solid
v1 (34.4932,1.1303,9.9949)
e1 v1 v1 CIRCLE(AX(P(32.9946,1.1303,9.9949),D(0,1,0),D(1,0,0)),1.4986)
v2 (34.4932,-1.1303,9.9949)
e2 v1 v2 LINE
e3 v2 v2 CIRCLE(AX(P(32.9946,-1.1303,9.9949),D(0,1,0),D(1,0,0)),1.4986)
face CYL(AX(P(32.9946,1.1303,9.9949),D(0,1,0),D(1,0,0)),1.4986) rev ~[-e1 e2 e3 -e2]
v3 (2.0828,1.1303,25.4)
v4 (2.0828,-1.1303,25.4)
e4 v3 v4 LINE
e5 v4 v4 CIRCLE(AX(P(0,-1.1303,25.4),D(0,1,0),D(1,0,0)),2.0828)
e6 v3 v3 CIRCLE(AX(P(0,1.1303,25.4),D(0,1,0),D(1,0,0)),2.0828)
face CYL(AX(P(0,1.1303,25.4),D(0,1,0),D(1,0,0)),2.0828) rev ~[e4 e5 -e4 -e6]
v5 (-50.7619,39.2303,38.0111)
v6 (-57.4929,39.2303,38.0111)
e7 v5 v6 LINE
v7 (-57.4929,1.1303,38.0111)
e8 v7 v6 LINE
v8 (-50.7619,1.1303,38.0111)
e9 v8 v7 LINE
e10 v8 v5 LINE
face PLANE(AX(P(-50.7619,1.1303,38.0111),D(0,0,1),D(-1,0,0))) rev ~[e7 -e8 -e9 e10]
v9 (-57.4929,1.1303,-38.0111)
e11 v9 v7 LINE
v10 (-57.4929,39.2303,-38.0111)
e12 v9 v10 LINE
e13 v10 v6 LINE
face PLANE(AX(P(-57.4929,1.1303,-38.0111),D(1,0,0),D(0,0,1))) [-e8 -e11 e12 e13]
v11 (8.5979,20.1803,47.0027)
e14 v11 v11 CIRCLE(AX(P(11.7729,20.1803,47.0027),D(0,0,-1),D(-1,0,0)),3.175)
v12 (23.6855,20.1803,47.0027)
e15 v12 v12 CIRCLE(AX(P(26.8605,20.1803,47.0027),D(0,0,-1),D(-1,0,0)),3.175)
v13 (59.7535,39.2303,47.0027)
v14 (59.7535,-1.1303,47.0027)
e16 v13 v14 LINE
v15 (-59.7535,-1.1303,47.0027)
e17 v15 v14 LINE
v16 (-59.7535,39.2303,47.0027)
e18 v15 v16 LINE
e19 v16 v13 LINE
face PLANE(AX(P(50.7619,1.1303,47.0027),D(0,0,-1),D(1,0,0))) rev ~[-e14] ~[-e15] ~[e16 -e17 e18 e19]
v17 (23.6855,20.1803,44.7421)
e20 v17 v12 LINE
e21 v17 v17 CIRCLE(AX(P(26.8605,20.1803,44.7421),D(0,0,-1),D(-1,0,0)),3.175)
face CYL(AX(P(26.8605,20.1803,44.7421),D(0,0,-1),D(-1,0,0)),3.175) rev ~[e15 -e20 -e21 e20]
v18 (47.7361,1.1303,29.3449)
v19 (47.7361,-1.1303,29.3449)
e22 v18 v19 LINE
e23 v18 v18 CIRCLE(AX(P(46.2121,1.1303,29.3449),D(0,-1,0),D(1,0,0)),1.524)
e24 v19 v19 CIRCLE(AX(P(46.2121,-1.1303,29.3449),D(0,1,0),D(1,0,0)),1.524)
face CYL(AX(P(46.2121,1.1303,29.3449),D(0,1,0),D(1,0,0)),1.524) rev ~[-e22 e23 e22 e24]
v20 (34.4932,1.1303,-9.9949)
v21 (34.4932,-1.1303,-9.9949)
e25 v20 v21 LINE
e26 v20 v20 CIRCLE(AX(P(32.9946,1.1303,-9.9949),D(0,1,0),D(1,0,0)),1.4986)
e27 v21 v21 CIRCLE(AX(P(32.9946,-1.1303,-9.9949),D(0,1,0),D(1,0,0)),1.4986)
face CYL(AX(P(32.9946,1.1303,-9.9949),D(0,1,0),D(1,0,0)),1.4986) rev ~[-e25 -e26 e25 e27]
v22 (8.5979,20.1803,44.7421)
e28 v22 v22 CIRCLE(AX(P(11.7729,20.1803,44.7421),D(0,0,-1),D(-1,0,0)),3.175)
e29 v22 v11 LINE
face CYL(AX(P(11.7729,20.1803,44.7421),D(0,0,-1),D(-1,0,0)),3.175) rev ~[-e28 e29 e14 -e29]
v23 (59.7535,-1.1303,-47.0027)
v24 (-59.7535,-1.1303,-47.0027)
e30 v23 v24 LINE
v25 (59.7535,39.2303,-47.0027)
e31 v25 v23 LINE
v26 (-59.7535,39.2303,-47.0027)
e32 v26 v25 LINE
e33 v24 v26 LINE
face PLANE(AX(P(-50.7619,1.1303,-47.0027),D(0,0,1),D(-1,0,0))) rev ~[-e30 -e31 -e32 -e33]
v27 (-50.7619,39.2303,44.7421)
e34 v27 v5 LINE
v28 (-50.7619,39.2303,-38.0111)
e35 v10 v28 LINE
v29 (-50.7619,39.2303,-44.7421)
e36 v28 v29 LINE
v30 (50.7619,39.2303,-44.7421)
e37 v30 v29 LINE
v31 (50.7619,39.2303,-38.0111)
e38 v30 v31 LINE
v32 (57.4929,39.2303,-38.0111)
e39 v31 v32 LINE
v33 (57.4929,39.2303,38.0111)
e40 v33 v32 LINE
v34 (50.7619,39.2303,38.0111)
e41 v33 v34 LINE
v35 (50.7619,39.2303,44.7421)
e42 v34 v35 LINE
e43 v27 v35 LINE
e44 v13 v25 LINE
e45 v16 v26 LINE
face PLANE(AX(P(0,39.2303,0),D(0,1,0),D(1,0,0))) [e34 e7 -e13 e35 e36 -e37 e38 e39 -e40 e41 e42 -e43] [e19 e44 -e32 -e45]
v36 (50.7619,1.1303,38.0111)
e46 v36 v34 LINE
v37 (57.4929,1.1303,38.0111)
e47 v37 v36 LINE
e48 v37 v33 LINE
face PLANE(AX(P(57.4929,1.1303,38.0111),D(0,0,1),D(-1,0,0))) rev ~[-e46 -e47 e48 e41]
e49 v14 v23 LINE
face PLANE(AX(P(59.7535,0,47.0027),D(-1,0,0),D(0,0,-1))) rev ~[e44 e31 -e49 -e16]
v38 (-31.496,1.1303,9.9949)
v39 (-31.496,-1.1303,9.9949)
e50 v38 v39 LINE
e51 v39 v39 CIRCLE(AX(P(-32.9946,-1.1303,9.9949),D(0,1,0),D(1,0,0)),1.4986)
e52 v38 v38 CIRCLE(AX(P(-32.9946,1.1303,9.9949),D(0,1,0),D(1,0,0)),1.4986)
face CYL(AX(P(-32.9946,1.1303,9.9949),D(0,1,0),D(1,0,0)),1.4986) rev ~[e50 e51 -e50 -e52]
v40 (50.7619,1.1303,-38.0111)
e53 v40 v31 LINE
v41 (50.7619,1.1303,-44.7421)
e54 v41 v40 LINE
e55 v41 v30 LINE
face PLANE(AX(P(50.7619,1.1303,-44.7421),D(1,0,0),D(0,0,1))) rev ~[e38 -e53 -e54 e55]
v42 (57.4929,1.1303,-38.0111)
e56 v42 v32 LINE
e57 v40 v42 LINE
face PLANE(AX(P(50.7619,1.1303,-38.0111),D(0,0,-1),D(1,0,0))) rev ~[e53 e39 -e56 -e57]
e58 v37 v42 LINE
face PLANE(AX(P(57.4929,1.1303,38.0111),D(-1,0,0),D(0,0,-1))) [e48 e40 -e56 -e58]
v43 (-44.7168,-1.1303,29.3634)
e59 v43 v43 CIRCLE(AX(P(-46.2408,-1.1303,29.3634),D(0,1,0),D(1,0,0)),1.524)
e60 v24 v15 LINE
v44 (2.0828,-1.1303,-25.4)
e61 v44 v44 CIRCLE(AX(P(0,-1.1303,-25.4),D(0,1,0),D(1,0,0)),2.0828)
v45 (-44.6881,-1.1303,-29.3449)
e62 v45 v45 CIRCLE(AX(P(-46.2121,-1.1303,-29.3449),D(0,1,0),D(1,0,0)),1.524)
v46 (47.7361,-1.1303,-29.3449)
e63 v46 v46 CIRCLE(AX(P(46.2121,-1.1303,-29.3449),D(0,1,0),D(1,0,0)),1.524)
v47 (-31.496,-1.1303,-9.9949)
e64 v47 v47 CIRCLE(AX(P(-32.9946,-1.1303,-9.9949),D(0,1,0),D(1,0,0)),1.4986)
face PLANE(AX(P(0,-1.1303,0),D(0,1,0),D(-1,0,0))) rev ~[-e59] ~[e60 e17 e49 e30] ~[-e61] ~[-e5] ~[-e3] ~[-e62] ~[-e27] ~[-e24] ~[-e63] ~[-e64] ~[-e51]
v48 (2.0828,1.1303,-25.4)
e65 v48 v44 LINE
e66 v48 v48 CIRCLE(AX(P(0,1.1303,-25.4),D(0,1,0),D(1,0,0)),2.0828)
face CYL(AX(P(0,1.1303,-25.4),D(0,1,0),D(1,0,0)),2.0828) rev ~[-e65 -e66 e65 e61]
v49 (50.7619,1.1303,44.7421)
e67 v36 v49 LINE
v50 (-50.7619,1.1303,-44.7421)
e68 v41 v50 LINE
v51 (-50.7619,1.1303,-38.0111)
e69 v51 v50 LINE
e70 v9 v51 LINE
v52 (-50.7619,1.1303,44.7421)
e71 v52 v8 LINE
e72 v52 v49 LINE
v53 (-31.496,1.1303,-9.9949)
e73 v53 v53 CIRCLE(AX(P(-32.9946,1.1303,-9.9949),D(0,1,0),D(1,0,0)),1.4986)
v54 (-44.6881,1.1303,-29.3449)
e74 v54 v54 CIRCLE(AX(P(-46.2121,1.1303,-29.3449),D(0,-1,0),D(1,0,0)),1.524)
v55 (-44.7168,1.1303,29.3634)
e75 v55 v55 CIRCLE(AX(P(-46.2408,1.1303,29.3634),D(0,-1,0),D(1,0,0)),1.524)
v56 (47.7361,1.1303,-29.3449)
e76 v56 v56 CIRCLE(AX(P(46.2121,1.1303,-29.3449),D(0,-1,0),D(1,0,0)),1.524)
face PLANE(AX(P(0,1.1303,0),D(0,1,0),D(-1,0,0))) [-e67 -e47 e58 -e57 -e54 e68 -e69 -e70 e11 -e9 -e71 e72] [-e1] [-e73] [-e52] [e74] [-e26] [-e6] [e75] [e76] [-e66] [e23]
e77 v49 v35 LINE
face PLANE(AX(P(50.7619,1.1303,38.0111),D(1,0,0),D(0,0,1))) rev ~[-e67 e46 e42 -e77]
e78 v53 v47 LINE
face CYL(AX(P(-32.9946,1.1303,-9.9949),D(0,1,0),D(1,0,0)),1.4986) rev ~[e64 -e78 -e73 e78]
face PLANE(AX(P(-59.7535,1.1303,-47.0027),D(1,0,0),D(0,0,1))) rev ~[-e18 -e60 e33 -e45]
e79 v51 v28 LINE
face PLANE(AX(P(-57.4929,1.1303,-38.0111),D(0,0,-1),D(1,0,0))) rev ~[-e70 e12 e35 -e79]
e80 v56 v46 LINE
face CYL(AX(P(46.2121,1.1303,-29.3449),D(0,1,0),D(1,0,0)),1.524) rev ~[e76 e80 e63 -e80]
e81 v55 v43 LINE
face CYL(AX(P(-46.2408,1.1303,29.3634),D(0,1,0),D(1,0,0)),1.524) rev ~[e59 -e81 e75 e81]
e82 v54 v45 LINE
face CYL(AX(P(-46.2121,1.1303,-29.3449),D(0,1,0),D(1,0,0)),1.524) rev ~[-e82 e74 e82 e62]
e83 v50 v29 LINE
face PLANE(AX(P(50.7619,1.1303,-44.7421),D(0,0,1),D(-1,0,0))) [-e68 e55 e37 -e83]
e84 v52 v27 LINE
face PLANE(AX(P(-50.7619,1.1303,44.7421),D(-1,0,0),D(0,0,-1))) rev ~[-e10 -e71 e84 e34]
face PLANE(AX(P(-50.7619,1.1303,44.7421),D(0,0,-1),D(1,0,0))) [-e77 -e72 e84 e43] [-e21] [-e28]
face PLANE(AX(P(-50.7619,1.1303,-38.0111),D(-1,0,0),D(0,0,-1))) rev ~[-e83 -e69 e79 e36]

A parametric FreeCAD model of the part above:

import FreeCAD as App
import Part
import Sketcher

V = App.Vector
Q = App.Units.Quantity


def add_polygon(sketch, points):
    """Adds a closed chain of lines whose ends are joined by coincident constraints."""
    first, n = sketch.GeometryCount, len(points)
    for a, b in zip(points, points[1:] + points[:1]):
        sketch.addGeometry(Part.LineSegment(App.Vector(*a, 0), App.Vector(*b, 0)), False)
    for i in range(n):
        sketch.addConstraint(Sketcher.Constraint("Coincident", first + i, 2, first + (i + 1) % n, 1))

doc = App.newDocument("Part")
body = doc.addObject("PartDesign::Body", "Body")

# Sketch on XZ plane
sketch1 = doc.addObject("Sketcher::SketchObject", "Sketch")
body.addObject(sketch1)
sketch1.AttachmentSupport = (doc.XZ_Plane, [""])
sketch1.MapMode = "FlatFace"
add_polygon(sketch1, [(60, 47), (60, -47), (-60, -47), (-60, 47)])  # lines 0-3
sketch1.addConstraint([
    Sketcher.Constraint("Vertical", 0),
    Sketcher.Constraint("Horizontal", 1),
    Sketcher.Constraint("Vertical", 2),
    Sketcher.Constraint("Horizontal", 3),
    Sketcher.Constraint("Symmetric", 0, 2, 2, 2, -1, 1),
    Sketcher.Constraint("DistanceX", 1, 2, 1, 1, Q("4.705 in")),
    Sketcher.Constraint("DistanceY", 0, 2, 0, 1, Q("3.701 in")),
])
pad1 = doc.addObject("PartDesign::Pad", "Pad")
body.addObject(pad1)
pad1.Profile = sketch1
pad1.Length = Q("0.089 in")
pad1.Midplane = True

# Sketch on XZ plane
sketch2 = doc.addObject("Sketcher::SketchObject", "Sketch001")
body.addObject(sketch2)
sketch2.AttachmentSupport = (doc.XZ_Plane, [""])
sketch2.MapMode = "FlatFace"
sketch2.AttachmentOffset = App.Placement(V(0, 0, -0.0445 * 25.4), App.Rotation())
add_polygon(sketch2, [(60, -47), (-60, -47), (-60, 47), (60, 47)])  # lines 0-3
add_polygon(sketch2, [(51, 45), (-51, 45), (-51, 38), (-57, 38), (-57, -38), (-51, -38), (-51, -45), (51, -45), (51, -38), (57, -38), (57, 38), (51, 38)])  # lines 4-15
sketch2.addConstraint([
    Sketcher.Constraint("Horizontal", 0),
    Sketcher.Constraint("Vertical", 1),
    Sketcher.Constraint("Horizontal", 2),
    Sketcher.Constraint("Vertical", 3),
    Sketcher.Constraint("Horizontal", 4),
    Sketcher.Constraint("Vertical", 5),
    Sketcher.Constraint("Horizontal", 6),
    Sketcher.Constraint("Vertical", 7),
    Sketcher.Constraint("Horizontal", 8),
    Sketcher.Constraint("Vertical", 9),
    Sketcher.Constraint("Horizontal", 10),
    Sketcher.Constraint("Vertical", 11),
    Sketcher.Constraint("Horizontal", 12),
    Sketcher.Constraint("Vertical", 13),
    Sketcher.Constraint("Horizontal", 14),
    Sketcher.Constraint("Vertical", 15),
    Sketcher.Constraint("Symmetric", 0, 2, 2, 2, -1, 1),
    Sketcher.Constraint("Symmetric", 4, 2, 10, 2, -1, 1),
    Sketcher.Constraint("Symmetric", 6, 2, 12, 2, -1, 1),
    Sketcher.Constraint("Symmetric", 8, 2, 14, 2, -1, 1),
    Sketcher.Constraint("Symmetric", 8, 2, 11, 2, -2),
    Sketcher.Constraint("Equal", 14, 5),
    Sketcher.Constraint("DistanceX", 1, 2, 4, 2, Q("0.354 in")),
    Sketcher.Constraint("DistanceY", 5, 2, 1, 2, Q("0.354 in")),
    Sketcher.Constraint("DistanceX", 0, 2, 0, 1, Q("4.705 in")),
    Sketcher.Constraint("DistanceX", 6, 2, 6, 1, Q("0.265 in")),
    Sketcher.Constraint("DistanceY", 1, 1, 1, 2, Q("3.701 in")),
])
pad2 = doc.addObject("PartDesign::Pad", "Pad001")
body.addObject(pad2)
pad2.Profile = sketch2
pad2.Length = Q("1.5 in")
pad2.Reversed = True

# Sketch on XZ plane
sketch3 = doc.addObject("Sketcher::SketchObject", "Sketch002")
body.addObject(sketch3)
sketch3.AttachmentSupport = (doc.XZ_Plane, [""])
sketch3.MapMode = "FlatFace"
sketch3.AttachmentOffset = App.Placement(V(0, 0, -0.0445 * 25.4), App.Rotation())
sketch3.addGeometry([
    Part.Circle(V(0, 25.4, 0), V(0, 0, 1), 2.1),
    Part.Circle(V(0, -25.4, 0), V(0, 0, 1), 2.1),
], False)
sketch3.addConstraint([
    Sketcher.Constraint("Equal", 0, 1),
    Sketcher.Constraint("Symmetric", 0, 3, 1, 3, -1, 1),
    Sketcher.Constraint("PointOnObject", 0, 3, -2),
    Sketcher.Constraint("Diameter", 0, Q("0.164 in")),
    Sketcher.Constraint("DistanceY", -1, 1, 0, 3, Q("1 in")),
])
pocket1 = doc.addObject("PartDesign::Pocket", "Pocket")
body.addObject(pocket1)
pocket1.Profile = sketch3
pocket1.Type = "ThroughAll"
pocket1.Reversed = True

# Sketch on XY plane
sketch4 = doc.addObject("Sketcher::SketchObject", "Sketch003")
body.addObject(sketch4)
sketch4.AttachmentSupport = (doc.XY_Plane, [""])
sketch4.MapMode = "FlatFace"
sketch4.AttachmentOffset = App.Placement(V(0, 0, 1.7615 * 25.4), App.Rotation())
sketch4.addGeometry([
    Part.Circle(V(26.9, 20.2, 0), V(0, 0, 1), 3.2),
    Part.Circle(V(11.8, 20.2, 0), V(0, 0, 1), 3.2),
], False)
sketch4.addConstraint([
    Sketcher.Constraint("Equal", 0, 1),
    Sketcher.Constraint("Horizontal", 0, 3, 1, 3),
    Sketcher.Constraint("Diameter", 0, Q("0.25 in")),
    Sketcher.Constraint("DistanceX", 1, 3, 0, 3, Q("0.594 in")),
    Sketcher.Constraint("DistanceX", -1, 1, 0, 3, Q("1.0575 in")),
    Sketcher.Constraint("DistanceY", -1, 1, 0, 3, Q("0.7945 in")),
])
pocket2 = doc.addObject("PartDesign::Pocket", "Pocket001")
body.addObject(pocket2)
pocket2.Profile = sketch4
pocket2.Type = "ThroughAll"
pocket2.Reversed = True

# Sketch on XZ plane
sketch5 = doc.addObject("Sketcher::SketchObject", "Sketch004")
body.addObject(sketch5)
sketch5.AttachmentSupport = (doc.XZ_Plane, [""])
sketch5.MapMode = "FlatFace"
sketch5.AttachmentOffset = App.Placement(V(0, 0, -0.0445 * 25.4), App.Rotation())
sketch5.addGeometry([
    Part.Circle(V(-33, 10, 0), V(0, 0, 1), 1.5),  # 0
    Part.Circle(V(-33, -10, 0), V(0, 0, 1), 1.5),  # 1
    Part.Circle(V(33, -10, 0), V(0, 0, 1), 1.5),  # 2
    Part.Circle(V(33, 10, 0), V(0, 0, 1), 1.5),  # 3
    Part.Circle(V(46.2, -29.3, 0), V(0, 0, 1), 1.5),  # 4
    Part.Circle(V(-46.2, -29.3, 0), V(0, 0, 1), 1.5),  # 5
    Part.Circle(V(-46.2, 29.4, 0), V(0, 0, 1), 1.5),  # 6
    Part.Circle(V(46.2, 29.3, 0), V(0, 0, 1), 1.5),  # 7
], False)
sketch5.addConstraint([
    Sketcher.Constraint("Equal", 0, 1),
    Sketcher.Constraint("Equal", 1, 2),
    Sketcher.Constraint("Equal", 2, 3),
    Sketcher.Constraint("Equal", 4, 5),
    Sketcher.Constraint("Equal", 5, 6),
    Sketcher.Constraint("Equal", 6, 7),
    Sketcher.Constraint("Symmetric", 0, 3, 2, 3, -1, 1),
    Sketcher.Constraint("Symmetric", 1, 3, 3, 3, -1, 1),
    Sketcher.Constraint("Symmetric", 5, 3, 7, 3, -1, 1),
    Sketcher.Constraint("Symmetric", 1, 3, 2, 3, -2),
    Sketcher.Constraint("Symmetric", 4, 3, 5, 3, -2),
    Sketcher.Constraint("Diameter", 4, Q("0.12 in")),
    Sketcher.Constraint("Diameter", 0, Q("0.118 in")),
    Sketcher.Constraint("DistanceY", 1, 3, 0, 3, Q("0.787 in")),
    Sketcher.Constraint("DistanceX", 0, 3, -1, 1, Q("1.299 in")),
    Sketcher.Constraint("DistanceY", 4, 3, -1, 1, Q("1.1553 in")),
    Sketcher.Constraint("DistanceX", 6, 3, -1, 1, Q("1.8205 in")),
    Sketcher.Constraint("DistanceX", -1, 1, 4, 3, 46.212),
    Sketcher.Constraint("DistanceY", -1, 1, 6, 3, 29.3634),
])
pocket3 = doc.addObject("PartDesign::Pocket", "Pocket002")
body.addObject(pocket3)
pocket3.Profile = sketch5
pocket3.Type = "ThroughAll"
pocket3.Reversed = True

doc.recompute()
